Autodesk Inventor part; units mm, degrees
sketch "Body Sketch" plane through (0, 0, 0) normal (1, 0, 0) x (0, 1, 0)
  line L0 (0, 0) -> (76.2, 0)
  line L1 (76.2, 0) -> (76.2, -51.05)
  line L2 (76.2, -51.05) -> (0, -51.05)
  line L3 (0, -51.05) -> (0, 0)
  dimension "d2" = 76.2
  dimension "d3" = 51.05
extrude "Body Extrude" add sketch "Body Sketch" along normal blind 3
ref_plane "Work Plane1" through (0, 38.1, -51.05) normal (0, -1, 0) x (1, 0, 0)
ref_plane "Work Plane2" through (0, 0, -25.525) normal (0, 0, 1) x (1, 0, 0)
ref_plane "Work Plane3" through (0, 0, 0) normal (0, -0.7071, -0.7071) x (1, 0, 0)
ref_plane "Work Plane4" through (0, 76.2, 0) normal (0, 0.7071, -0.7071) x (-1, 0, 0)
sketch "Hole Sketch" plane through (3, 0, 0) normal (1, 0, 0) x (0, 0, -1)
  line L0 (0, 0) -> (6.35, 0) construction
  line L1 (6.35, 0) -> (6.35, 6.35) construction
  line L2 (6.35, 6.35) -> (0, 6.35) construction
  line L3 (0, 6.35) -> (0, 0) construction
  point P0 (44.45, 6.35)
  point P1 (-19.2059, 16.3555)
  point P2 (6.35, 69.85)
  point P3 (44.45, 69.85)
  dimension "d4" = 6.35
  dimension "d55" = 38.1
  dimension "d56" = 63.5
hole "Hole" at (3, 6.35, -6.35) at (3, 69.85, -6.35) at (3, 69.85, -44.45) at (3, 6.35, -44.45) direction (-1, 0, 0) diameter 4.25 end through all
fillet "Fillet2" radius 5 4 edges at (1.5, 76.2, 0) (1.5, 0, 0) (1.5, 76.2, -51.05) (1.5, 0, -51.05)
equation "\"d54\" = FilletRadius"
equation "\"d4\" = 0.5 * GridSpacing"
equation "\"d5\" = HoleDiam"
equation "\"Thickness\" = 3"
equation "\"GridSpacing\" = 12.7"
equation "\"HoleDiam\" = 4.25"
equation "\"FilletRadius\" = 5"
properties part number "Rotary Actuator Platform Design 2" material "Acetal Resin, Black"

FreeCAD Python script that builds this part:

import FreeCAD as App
import Part
import Sketcher

V = App.Vector


def edges_at(feature, points):
    """Names of the edges that pass closest to the given points."""
    edges = feature.Shape.Edges
    near = lambda p: min(range(len(edges)), key=lambda i: edges[i].distToShape(Part.Vertex(*p))[0])
    return sorted({f"Edge{near(p) + 1}" for p in points})


def add_polygon(sketch, points):
    """Adds a closed chain of lines whose ends are joined by coincident constraints."""
    first, n = sketch.GeometryCount, len(points)
    for a, b in zip(points, points[1:] + points[:1]):
        sketch.addGeometry(Part.LineSegment(App.Vector(*a, 0), App.Vector(*b, 0)), False)
    for i in range(n):
        sketch.addConstraint(Sketcher.Constraint("Coincident", first + i, 2, first + (i + 1) % n, 1))

doc = App.newDocument("Part")
body = doc.addObject("PartDesign::Body", "Body")

# Sketch on YZ plane
sketch1 = body.newObject("Sketcher::SketchObject", "Sketch")
sketch1.AttachmentSupport = (doc.getObject("YZ_Plane"), [""])
sketch1.MapMode = "FlatFace"
add_polygon(sketch1, [(76, 0), (0, 0), (0, -51), (76, -51)])  # lines 0-3
sketch1.addConstraint([
    Sketcher.Constraint("Horizontal", 0),
    Sketcher.Constraint("Vertical", 1),
    Sketcher.Constraint("Horizontal", 2),
    Sketcher.Constraint("Vertical", 3),
    Sketcher.Constraint("Coincident", 0, 2, -1, 1),
    Sketcher.Constraint("DistanceX", 0, 2, 0, 1, 76.2),
    Sketcher.Constraint("DistanceY", 1, 2, 1, 1, 51.05),
])
pad1 = body.newObject("PartDesign::Pad", "Pad")
pad1.Profile = sketch1
pad1.Length = 3

# Sketch on YZ plane
sketch2 = body.newObject("Sketcher::SketchObject", "Sketch001")
sketch2.AttachmentSupport = (doc.getObject("YZ_Plane"), [""])
sketch2.MapMode = "FlatFace"
sketch2.AttachmentOffset = App.Placement(V(0, 0, 3), App.Rotation())
sketch2.addGeometry([
    Part.Circle(V(6.3, -6.3, 0), V(0, 0, 1), 2.1),
    Part.Circle(V(69.8, -6.3, 0), V(0, 0, 1), 2.1),
    Part.Circle(V(69.8, -44.5, 0), V(0, 0, 1), 2.1),
    Part.Circle(V(6.3, -44.5, 0), V(0, 0, 1), 2.1),
], False)
sketch2.addConstraint([
    Sketcher.Constraint("Equal", 0, 1),
    Sketcher.Constraint("Equal", 1, 2),
    Sketcher.Constraint("Equal", 2, 3),
    Sketcher.Constraint("Horizontal", 0, 3, 1, 3),
    Sketcher.Constraint("Horizontal", 2, 3, 3, 3),
    Sketcher.Constraint("Vertical", 1, 3, 2, 3),
    Sketcher.Constraint("Vertical", 0, 3, 3, 3),
    Sketcher.Constraint("Diameter", 0, 4.25),
    Sketcher.Constraint("DistanceX", 0, 3, 1, 3, 63.5),
    Sketcher.Constraint("DistanceY", 2, 3, 1, 3, 38.1),
    Sketcher.Constraint("DistanceX", -1, 1, 0, 3, 6.35),
    Sketcher.Constraint("DistanceY", 0, 3, -1, 1, 6.35),
])
doc.recompute()
hole = body.newObject("PartDesign::Hole", "Hole")
hole.Profile = sketch2
hole.ThreadType = "None"
hole.Diameter = 4.25
hole.DepthType = "ThroughAll"
doc.recompute()

fillet = body.newObject("PartDesign::Fillet", "Fillet")
fillet.Base = (hole, edges_at(hole, [
    (1.5, 76.2, 0),
    (1.5, 0, 0),
    (1.5, 76.2, -51.05),
    (1.5, 0, -51.05),
]))
fillet.Radius = 5

doc.recompute()
